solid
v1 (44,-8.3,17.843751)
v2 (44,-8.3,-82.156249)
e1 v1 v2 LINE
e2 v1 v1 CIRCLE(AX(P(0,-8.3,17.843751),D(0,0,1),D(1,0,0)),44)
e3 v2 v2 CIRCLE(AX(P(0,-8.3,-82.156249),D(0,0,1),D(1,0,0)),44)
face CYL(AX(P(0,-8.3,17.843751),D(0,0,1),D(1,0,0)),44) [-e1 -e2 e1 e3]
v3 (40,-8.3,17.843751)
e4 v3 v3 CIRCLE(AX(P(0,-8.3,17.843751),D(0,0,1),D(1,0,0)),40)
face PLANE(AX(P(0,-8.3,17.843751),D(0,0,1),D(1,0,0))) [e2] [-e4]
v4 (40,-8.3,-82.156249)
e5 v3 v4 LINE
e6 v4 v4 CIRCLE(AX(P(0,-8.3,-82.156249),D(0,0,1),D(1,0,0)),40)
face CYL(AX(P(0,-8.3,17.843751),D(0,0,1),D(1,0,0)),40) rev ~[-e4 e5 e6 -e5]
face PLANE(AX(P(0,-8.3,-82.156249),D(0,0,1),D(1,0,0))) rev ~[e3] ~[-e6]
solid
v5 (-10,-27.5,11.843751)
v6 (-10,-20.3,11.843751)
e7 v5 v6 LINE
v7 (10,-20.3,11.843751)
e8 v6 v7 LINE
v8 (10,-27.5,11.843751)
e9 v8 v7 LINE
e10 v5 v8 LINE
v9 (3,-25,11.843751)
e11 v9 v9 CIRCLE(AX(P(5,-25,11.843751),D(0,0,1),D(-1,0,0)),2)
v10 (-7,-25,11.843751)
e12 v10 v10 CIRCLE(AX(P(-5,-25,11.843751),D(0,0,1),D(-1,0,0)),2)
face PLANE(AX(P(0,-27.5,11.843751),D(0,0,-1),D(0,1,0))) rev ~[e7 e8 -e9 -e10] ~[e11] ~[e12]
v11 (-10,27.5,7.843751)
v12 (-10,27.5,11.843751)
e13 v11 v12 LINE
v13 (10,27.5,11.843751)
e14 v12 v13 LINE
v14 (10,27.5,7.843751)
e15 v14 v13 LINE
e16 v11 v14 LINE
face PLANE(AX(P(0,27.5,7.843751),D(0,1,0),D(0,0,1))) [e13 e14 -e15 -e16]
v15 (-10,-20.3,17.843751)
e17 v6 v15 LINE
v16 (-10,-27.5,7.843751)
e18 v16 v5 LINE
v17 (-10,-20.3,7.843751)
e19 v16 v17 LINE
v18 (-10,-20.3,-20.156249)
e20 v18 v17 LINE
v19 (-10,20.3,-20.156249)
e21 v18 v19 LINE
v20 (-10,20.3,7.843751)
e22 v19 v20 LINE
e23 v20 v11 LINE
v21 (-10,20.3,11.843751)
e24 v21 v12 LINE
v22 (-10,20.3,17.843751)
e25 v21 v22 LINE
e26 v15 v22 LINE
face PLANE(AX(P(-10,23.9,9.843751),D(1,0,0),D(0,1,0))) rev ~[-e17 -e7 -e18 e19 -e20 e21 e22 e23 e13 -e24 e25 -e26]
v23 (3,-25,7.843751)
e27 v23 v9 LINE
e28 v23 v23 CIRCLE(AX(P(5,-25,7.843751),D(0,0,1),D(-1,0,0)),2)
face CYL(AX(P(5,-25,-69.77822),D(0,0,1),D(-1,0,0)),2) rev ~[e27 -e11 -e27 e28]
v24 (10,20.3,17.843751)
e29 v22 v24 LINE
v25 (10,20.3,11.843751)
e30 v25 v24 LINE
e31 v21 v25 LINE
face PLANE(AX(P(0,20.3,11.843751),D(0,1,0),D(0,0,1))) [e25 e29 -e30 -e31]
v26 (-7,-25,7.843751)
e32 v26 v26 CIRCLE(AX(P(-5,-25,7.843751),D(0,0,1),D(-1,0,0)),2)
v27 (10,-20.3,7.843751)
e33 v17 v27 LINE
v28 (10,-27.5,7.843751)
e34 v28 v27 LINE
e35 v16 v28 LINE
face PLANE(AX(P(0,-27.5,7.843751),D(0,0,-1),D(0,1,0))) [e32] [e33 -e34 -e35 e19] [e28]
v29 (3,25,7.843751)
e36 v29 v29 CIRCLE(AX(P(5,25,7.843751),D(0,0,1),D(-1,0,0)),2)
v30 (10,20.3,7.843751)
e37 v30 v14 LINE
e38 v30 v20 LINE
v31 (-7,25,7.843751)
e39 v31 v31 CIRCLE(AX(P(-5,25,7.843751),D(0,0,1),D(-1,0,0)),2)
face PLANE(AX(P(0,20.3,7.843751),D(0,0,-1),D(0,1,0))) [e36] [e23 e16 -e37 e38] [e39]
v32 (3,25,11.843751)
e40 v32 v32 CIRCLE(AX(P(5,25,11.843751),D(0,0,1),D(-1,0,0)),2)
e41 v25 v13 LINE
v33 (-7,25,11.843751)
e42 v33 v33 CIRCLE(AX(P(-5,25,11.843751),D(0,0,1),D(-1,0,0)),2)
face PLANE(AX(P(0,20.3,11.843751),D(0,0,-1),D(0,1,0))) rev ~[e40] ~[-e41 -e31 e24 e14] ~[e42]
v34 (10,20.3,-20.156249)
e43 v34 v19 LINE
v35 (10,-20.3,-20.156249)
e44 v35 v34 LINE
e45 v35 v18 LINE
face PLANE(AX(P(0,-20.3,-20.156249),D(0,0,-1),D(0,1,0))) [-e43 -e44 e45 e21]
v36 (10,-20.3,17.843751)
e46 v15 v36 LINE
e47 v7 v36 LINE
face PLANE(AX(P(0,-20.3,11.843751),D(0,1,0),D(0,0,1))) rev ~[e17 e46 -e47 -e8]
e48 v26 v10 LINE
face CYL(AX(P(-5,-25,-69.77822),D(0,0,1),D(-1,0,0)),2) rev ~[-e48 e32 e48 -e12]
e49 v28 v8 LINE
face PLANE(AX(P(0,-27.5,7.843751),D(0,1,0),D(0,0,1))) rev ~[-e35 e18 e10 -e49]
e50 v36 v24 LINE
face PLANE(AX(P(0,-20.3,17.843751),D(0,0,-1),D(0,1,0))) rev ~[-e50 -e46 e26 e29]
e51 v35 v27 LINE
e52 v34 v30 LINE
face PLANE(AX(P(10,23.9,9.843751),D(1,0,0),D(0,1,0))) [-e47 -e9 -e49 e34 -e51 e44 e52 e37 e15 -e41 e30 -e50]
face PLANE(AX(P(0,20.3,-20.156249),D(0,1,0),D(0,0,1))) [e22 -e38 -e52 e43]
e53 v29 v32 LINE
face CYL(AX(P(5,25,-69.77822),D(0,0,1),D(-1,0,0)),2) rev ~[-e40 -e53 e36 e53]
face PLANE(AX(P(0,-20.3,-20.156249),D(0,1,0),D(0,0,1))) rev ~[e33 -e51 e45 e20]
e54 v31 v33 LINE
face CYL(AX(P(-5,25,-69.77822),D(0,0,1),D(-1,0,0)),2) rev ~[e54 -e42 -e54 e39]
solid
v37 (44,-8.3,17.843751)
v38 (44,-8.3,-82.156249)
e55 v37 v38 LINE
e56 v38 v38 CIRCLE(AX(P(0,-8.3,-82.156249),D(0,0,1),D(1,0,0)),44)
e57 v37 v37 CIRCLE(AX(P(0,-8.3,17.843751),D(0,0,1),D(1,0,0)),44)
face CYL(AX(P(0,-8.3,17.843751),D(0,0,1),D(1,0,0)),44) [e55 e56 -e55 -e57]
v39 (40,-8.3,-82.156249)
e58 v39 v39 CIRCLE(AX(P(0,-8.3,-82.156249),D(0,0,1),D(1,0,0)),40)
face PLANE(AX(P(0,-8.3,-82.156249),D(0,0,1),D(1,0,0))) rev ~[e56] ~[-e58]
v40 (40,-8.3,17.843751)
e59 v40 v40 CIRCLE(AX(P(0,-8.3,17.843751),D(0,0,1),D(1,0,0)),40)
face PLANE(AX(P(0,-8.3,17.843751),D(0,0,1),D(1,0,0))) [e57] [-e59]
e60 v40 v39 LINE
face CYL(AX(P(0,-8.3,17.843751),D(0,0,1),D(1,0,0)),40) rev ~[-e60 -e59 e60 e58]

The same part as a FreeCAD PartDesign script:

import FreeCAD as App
import Part
import Sketcher
from FreeCAD import Vector

doc = App.newDocument("Part")
params = doc.addObject("Spreadsheet::Sheet", "Params")
for row, (alias, value) in enumerate([
    ("sketch1_height", "4 mm"),
    ("sketch1_height2", "6 mm"),
    ("sketch1_height3", "28 mm"),
    ("sketch1_width", "7.2 mm"),
    ("sketch1_width2", "40.6 mm"),
    ("pad1_length", "20 mm"),
    ("sketch2_diameter", "4 mm"),
    ("hole_diameter", "4 mm"),
    ("sketch3_diameter", "88 mm"),
    ("sketch3_diameter2", "80 mm"),
    ("pad2_length", "100 mm"),
    ("sketch4_diameter", "88 mm"),
    ("sketch4_diameter2", "80 mm"),
    ("pad3_length", "100 mm"),
], start=1):
    params.set(f"A{row}", alias)
    params.set(f"B{row}", "=" + value)
    params.setAlias(f"B{row}", alias)

body = doc.addObject("PartDesign::Body", "Body")

# Sketch on YZ plane
sketch1 = body.newObject("Sketcher::SketchObject", "Sketch")
sketch1.AttachmentSupport = (doc.getObject("YZ_Plane"), [""])
sketch1.MapMode = "FlatFace"
sketch1.addGeometry([
    Part.LineSegment(Vector(20.3, 7.8, 0), Vector(27.5, 7.8, 0)),  # 0
    Part.LineSegment(Vector(27.5, 7.8, 0), Vector(27.5, 11.8, 0)),  # 1
    Part.LineSegment(Vector(27.5, 11.8, 0), Vector(20.3, 11.8, 0)),  # 2
    Part.LineSegment(Vector(20.3, 11.8, 0), Vector(20.3, 17.8, 0)),  # 3
    Part.LineSegment(Vector(20.3, 17.8, 0), Vector(-20.3, 17.8, 0)),  # 4
    Part.LineSegment(Vector(-20.3, 17.8, 0), Vector(-20.3, 11.8, 0)),  # 5
    Part.LineSegment(Vector(-20.3, 11.8, 0), Vector(-27.5, 11.8, 0)),  # 6
    Part.LineSegment(Vector(-27.5, 11.8, 0), Vector(-27.5, 7.8, 0)),  # 7
    Part.LineSegment(Vector(-27.5, 7.8, 0), Vector(-20.3, 7.8, 0)),  # 8
    Part.LineSegment(Vector(-20.3, 7.8, 0), Vector(-20.3, -20.2, 0)),  # 9
    Part.LineSegment(Vector(-20.3, -20.2, 0), Vector(20.3, -20.2, 0)),  # 10
    Part.LineSegment(Vector(20.3, -20.2, 0), Vector(20.3, 7.8, 0)),  # 11
], False)
sketch1.addConstraint([
    Sketcher.Constraint("Coincident", 0, 2, 1, 1),
    Sketcher.Constraint("Coincident", 1, 2, 2, 1),
    Sketcher.Constraint("Coincident", 2, 2, 3, 1),
    Sketcher.Constraint("Coincident", 3, 2, 4, 1),
    Sketcher.Constraint("Coincident", 4, 2, 5, 1),
    Sketcher.Constraint("Coincident", 5, 2, 6, 1),
    Sketcher.Constraint("Coincident", 6, 2, 7, 1),
    Sketcher.Constraint("Coincident", 7, 2, 8, 1),
    Sketcher.Constraint("Coincident", 8, 2, 9, 1),
    Sketcher.Constraint("Coincident", 9, 2, 10, 1),
    Sketcher.Constraint("Coincident", 10, 2, 11, 1),
    Sketcher.Constraint("Coincident", 11, 2, 0, 1),
    Sketcher.Constraint("Horizontal", 0),
    Sketcher.Constraint("Vertical", 1),
    Sketcher.Constraint("Horizontal", 2),
    Sketcher.Constraint("Vertical", 3),
    Sketcher.Constraint("Horizontal", 4),
    Sketcher.Constraint("Vertical", 5),
    Sketcher.Constraint("Horizontal", 6),
    Sketcher.Constraint("Vertical", 7),
    Sketcher.Constraint("Horizontal", 8),
    Sketcher.Constraint("Vertical", 9),
    Sketcher.Constraint("Horizontal", 10),
    Sketcher.Constraint("Vertical", 11),
    Sketcher.Constraint("Symmetric", 2, 2, 5, 2, -2),
    Sketcher.Constraint("Symmetric", 0, 2, 7, 2, -2),
    Sketcher.Constraint("Vertical", 5, 2, 8, 2),
    Sketcher.Constraint("Vertical", 3, 2, 10, 2),
    Sketcher.Constraint("DistanceY", 1, 1, 1, 2, 4.0),
    Sketcher.Constraint("DistanceY", 3, 1, 3, 2, 6.0),
    Sketcher.Constraint("DistanceY", 9, 2, 9, 1, 28.0),
    Sketcher.Constraint("DistanceX", 0, 1, 0, 2, 7.2),
    Sketcher.Constraint("DistanceX", 4, 2, 4, 1, 40.6),
    Sketcher.Constraint("DistanceY", -1, 1, 0, 2, 7.843751),
])
sketch1.setExpression("Constraints[28]", "Params.sketch1_height")
sketch1.setExpression("Constraints[29]", "Params.sketch1_height2")
sketch1.setExpression("Constraints[30]", "Params.sketch1_height3")
sketch1.setExpression("Constraints[31]", "Params.sketch1_width")
sketch1.setExpression("Constraints[32]", "Params.sketch1_width2")
pad1 = body.newObject("PartDesign::Pad", "Pad")
pad1.Profile = sketch1
pad1.setExpression("Length", "Params.pad1_length")
pad1.Midplane = True

# Sketch on XY plane
sketch2 = body.newObject("Sketcher::SketchObject", "Sketch001")
sketch2.AttachmentSupport = (doc.getObject("XY_Plane"), [""])
sketch2.MapMode = "FlatFace"
sketch2.addGeometry([
    Part.Circle(Vector(-5, 25, 0), Vector(0, 0, 1), 2),
    Part.Circle(Vector(5, 25, 0), Vector(0, 0, 1), 2),
    Part.Circle(Vector(5, -25, 0), Vector(0, 0, 1), 2),
    Part.Circle(Vector(-5, -25, 0), Vector(0, 0, 1), 2),
], False)
sketch2.addConstraint([
    Sketcher.Constraint("Equal", 0, 1),
    Sketcher.Constraint("Equal", 1, 2),
    Sketcher.Constraint("Equal", 2, 3),
    Sketcher.Constraint("Symmetric", 0, 3, 2, 3, -1, 1),
    Sketcher.Constraint("Symmetric", 1, 3, 3, 3, -1, 1),
    Sketcher.Constraint("Symmetric", 0, 3, 1, 3, -2),
    Sketcher.Constraint("Diameter", 0, 4.0),
    Sketcher.Constraint("DistanceX", 0, 3, -1, 1, 5.0),
    Sketcher.Constraint("DistanceY", -1, 1, 0, 3, 25.0),
])
sketch2.setExpression("Constraints[6]", "Params.sketch2_diameter")
doc.recompute()
hole = body.newObject("PartDesign::Hole", "Hole")
hole.Profile = sketch2
hole.ThreadType = "None"
hole.setExpression("Diameter", "Params.hole_diameter")
hole.DepthType = "ThroughAll"
hole.Reversed = True
body2 = doc.addObject("PartDesign::Body", "Body001")

# Sketch on XY plane
sketch3 = body2.newObject("Sketcher::SketchObject", "Sketch002")
sketch3.AttachmentSupport = (doc.getObject("XY_Plane001"), [""])
sketch3.MapMode = "FlatFace"
sketch3.AttachmentOffset = App.Placement(Vector(0, 0, 17.843751), App.Rotation())
sketch3.addGeometry([
    Part.Circle(Vector(0, -8, 0), Vector(0, 0, 1), 44),
    Part.Circle(Vector(0, -8, 0), Vector(0, 0, 1), 40),
], False)
sketch3.addConstraint([
    Sketcher.Constraint("Coincident", 1, 3, 0, 3),
    Sketcher.Constraint("PointOnObject", 0, 3, -2),
    Sketcher.Constraint("Diameter", 0, 88.0),
    Sketcher.Constraint("Diameter", 1, 80.0),
    Sketcher.Constraint("DistanceY", 0, 3, -1, 1, 8.3),
])
sketch3.setExpression("Constraints[2]", "Params.sketch3_diameter")
sketch3.setExpression("Constraints[3]", "Params.sketch3_diameter2")
pad2 = body2.newObject("PartDesign::Pad", "Pad001")
pad2.Profile = sketch3
pad2.setExpression("Length", "Params.pad2_length")
pad2.Reversed = True
body3 = doc.addObject("PartDesign::Body", "Body002")

# Sketch on XY plane
sketch4 = body3.newObject("Sketcher::SketchObject", "Sketch003")
sketch4.AttachmentSupport = (doc.getObject("XY_Plane002"), [""])
sketch4.MapMode = "FlatFace"
sketch4.AttachmentOffset = App.Placement(Vector(0, 0, 17.843751), App.Rotation())
sketch4.addGeometry([
    Part.Circle(Vector(0, -8, 0), Vector(0, 0, 1), 44),
    Part.Circle(Vector(0, -8, 0), Vector(0, 0, 1), 40),
], False)
sketch4.addConstraint([
    Sketcher.Constraint("Coincident", 1, 3, 0, 3),
    Sketcher.Constraint("PointOnObject", 0, 3, -2),
    Sketcher.Constraint("Diameter", 0, 88.0),
    Sketcher.Constraint("Diameter", 1, 80.0),
    Sketcher.Constraint("DistanceY", 0, 3, -1, 1, 8.3),
])
sketch4.setExpression("Constraints[2]", "Params.sketch4_diameter")
sketch4.setExpression("Constraints[3]", "Params.sketch4_diameter2")
pad3 = body3.newObject("PartDesign::Pad", "Pad002")
pad3.Profile = sketch4
pad3.setExpression("Length", "Params.pad3_length")
pad3.Reversed = True

doc.recompute()
